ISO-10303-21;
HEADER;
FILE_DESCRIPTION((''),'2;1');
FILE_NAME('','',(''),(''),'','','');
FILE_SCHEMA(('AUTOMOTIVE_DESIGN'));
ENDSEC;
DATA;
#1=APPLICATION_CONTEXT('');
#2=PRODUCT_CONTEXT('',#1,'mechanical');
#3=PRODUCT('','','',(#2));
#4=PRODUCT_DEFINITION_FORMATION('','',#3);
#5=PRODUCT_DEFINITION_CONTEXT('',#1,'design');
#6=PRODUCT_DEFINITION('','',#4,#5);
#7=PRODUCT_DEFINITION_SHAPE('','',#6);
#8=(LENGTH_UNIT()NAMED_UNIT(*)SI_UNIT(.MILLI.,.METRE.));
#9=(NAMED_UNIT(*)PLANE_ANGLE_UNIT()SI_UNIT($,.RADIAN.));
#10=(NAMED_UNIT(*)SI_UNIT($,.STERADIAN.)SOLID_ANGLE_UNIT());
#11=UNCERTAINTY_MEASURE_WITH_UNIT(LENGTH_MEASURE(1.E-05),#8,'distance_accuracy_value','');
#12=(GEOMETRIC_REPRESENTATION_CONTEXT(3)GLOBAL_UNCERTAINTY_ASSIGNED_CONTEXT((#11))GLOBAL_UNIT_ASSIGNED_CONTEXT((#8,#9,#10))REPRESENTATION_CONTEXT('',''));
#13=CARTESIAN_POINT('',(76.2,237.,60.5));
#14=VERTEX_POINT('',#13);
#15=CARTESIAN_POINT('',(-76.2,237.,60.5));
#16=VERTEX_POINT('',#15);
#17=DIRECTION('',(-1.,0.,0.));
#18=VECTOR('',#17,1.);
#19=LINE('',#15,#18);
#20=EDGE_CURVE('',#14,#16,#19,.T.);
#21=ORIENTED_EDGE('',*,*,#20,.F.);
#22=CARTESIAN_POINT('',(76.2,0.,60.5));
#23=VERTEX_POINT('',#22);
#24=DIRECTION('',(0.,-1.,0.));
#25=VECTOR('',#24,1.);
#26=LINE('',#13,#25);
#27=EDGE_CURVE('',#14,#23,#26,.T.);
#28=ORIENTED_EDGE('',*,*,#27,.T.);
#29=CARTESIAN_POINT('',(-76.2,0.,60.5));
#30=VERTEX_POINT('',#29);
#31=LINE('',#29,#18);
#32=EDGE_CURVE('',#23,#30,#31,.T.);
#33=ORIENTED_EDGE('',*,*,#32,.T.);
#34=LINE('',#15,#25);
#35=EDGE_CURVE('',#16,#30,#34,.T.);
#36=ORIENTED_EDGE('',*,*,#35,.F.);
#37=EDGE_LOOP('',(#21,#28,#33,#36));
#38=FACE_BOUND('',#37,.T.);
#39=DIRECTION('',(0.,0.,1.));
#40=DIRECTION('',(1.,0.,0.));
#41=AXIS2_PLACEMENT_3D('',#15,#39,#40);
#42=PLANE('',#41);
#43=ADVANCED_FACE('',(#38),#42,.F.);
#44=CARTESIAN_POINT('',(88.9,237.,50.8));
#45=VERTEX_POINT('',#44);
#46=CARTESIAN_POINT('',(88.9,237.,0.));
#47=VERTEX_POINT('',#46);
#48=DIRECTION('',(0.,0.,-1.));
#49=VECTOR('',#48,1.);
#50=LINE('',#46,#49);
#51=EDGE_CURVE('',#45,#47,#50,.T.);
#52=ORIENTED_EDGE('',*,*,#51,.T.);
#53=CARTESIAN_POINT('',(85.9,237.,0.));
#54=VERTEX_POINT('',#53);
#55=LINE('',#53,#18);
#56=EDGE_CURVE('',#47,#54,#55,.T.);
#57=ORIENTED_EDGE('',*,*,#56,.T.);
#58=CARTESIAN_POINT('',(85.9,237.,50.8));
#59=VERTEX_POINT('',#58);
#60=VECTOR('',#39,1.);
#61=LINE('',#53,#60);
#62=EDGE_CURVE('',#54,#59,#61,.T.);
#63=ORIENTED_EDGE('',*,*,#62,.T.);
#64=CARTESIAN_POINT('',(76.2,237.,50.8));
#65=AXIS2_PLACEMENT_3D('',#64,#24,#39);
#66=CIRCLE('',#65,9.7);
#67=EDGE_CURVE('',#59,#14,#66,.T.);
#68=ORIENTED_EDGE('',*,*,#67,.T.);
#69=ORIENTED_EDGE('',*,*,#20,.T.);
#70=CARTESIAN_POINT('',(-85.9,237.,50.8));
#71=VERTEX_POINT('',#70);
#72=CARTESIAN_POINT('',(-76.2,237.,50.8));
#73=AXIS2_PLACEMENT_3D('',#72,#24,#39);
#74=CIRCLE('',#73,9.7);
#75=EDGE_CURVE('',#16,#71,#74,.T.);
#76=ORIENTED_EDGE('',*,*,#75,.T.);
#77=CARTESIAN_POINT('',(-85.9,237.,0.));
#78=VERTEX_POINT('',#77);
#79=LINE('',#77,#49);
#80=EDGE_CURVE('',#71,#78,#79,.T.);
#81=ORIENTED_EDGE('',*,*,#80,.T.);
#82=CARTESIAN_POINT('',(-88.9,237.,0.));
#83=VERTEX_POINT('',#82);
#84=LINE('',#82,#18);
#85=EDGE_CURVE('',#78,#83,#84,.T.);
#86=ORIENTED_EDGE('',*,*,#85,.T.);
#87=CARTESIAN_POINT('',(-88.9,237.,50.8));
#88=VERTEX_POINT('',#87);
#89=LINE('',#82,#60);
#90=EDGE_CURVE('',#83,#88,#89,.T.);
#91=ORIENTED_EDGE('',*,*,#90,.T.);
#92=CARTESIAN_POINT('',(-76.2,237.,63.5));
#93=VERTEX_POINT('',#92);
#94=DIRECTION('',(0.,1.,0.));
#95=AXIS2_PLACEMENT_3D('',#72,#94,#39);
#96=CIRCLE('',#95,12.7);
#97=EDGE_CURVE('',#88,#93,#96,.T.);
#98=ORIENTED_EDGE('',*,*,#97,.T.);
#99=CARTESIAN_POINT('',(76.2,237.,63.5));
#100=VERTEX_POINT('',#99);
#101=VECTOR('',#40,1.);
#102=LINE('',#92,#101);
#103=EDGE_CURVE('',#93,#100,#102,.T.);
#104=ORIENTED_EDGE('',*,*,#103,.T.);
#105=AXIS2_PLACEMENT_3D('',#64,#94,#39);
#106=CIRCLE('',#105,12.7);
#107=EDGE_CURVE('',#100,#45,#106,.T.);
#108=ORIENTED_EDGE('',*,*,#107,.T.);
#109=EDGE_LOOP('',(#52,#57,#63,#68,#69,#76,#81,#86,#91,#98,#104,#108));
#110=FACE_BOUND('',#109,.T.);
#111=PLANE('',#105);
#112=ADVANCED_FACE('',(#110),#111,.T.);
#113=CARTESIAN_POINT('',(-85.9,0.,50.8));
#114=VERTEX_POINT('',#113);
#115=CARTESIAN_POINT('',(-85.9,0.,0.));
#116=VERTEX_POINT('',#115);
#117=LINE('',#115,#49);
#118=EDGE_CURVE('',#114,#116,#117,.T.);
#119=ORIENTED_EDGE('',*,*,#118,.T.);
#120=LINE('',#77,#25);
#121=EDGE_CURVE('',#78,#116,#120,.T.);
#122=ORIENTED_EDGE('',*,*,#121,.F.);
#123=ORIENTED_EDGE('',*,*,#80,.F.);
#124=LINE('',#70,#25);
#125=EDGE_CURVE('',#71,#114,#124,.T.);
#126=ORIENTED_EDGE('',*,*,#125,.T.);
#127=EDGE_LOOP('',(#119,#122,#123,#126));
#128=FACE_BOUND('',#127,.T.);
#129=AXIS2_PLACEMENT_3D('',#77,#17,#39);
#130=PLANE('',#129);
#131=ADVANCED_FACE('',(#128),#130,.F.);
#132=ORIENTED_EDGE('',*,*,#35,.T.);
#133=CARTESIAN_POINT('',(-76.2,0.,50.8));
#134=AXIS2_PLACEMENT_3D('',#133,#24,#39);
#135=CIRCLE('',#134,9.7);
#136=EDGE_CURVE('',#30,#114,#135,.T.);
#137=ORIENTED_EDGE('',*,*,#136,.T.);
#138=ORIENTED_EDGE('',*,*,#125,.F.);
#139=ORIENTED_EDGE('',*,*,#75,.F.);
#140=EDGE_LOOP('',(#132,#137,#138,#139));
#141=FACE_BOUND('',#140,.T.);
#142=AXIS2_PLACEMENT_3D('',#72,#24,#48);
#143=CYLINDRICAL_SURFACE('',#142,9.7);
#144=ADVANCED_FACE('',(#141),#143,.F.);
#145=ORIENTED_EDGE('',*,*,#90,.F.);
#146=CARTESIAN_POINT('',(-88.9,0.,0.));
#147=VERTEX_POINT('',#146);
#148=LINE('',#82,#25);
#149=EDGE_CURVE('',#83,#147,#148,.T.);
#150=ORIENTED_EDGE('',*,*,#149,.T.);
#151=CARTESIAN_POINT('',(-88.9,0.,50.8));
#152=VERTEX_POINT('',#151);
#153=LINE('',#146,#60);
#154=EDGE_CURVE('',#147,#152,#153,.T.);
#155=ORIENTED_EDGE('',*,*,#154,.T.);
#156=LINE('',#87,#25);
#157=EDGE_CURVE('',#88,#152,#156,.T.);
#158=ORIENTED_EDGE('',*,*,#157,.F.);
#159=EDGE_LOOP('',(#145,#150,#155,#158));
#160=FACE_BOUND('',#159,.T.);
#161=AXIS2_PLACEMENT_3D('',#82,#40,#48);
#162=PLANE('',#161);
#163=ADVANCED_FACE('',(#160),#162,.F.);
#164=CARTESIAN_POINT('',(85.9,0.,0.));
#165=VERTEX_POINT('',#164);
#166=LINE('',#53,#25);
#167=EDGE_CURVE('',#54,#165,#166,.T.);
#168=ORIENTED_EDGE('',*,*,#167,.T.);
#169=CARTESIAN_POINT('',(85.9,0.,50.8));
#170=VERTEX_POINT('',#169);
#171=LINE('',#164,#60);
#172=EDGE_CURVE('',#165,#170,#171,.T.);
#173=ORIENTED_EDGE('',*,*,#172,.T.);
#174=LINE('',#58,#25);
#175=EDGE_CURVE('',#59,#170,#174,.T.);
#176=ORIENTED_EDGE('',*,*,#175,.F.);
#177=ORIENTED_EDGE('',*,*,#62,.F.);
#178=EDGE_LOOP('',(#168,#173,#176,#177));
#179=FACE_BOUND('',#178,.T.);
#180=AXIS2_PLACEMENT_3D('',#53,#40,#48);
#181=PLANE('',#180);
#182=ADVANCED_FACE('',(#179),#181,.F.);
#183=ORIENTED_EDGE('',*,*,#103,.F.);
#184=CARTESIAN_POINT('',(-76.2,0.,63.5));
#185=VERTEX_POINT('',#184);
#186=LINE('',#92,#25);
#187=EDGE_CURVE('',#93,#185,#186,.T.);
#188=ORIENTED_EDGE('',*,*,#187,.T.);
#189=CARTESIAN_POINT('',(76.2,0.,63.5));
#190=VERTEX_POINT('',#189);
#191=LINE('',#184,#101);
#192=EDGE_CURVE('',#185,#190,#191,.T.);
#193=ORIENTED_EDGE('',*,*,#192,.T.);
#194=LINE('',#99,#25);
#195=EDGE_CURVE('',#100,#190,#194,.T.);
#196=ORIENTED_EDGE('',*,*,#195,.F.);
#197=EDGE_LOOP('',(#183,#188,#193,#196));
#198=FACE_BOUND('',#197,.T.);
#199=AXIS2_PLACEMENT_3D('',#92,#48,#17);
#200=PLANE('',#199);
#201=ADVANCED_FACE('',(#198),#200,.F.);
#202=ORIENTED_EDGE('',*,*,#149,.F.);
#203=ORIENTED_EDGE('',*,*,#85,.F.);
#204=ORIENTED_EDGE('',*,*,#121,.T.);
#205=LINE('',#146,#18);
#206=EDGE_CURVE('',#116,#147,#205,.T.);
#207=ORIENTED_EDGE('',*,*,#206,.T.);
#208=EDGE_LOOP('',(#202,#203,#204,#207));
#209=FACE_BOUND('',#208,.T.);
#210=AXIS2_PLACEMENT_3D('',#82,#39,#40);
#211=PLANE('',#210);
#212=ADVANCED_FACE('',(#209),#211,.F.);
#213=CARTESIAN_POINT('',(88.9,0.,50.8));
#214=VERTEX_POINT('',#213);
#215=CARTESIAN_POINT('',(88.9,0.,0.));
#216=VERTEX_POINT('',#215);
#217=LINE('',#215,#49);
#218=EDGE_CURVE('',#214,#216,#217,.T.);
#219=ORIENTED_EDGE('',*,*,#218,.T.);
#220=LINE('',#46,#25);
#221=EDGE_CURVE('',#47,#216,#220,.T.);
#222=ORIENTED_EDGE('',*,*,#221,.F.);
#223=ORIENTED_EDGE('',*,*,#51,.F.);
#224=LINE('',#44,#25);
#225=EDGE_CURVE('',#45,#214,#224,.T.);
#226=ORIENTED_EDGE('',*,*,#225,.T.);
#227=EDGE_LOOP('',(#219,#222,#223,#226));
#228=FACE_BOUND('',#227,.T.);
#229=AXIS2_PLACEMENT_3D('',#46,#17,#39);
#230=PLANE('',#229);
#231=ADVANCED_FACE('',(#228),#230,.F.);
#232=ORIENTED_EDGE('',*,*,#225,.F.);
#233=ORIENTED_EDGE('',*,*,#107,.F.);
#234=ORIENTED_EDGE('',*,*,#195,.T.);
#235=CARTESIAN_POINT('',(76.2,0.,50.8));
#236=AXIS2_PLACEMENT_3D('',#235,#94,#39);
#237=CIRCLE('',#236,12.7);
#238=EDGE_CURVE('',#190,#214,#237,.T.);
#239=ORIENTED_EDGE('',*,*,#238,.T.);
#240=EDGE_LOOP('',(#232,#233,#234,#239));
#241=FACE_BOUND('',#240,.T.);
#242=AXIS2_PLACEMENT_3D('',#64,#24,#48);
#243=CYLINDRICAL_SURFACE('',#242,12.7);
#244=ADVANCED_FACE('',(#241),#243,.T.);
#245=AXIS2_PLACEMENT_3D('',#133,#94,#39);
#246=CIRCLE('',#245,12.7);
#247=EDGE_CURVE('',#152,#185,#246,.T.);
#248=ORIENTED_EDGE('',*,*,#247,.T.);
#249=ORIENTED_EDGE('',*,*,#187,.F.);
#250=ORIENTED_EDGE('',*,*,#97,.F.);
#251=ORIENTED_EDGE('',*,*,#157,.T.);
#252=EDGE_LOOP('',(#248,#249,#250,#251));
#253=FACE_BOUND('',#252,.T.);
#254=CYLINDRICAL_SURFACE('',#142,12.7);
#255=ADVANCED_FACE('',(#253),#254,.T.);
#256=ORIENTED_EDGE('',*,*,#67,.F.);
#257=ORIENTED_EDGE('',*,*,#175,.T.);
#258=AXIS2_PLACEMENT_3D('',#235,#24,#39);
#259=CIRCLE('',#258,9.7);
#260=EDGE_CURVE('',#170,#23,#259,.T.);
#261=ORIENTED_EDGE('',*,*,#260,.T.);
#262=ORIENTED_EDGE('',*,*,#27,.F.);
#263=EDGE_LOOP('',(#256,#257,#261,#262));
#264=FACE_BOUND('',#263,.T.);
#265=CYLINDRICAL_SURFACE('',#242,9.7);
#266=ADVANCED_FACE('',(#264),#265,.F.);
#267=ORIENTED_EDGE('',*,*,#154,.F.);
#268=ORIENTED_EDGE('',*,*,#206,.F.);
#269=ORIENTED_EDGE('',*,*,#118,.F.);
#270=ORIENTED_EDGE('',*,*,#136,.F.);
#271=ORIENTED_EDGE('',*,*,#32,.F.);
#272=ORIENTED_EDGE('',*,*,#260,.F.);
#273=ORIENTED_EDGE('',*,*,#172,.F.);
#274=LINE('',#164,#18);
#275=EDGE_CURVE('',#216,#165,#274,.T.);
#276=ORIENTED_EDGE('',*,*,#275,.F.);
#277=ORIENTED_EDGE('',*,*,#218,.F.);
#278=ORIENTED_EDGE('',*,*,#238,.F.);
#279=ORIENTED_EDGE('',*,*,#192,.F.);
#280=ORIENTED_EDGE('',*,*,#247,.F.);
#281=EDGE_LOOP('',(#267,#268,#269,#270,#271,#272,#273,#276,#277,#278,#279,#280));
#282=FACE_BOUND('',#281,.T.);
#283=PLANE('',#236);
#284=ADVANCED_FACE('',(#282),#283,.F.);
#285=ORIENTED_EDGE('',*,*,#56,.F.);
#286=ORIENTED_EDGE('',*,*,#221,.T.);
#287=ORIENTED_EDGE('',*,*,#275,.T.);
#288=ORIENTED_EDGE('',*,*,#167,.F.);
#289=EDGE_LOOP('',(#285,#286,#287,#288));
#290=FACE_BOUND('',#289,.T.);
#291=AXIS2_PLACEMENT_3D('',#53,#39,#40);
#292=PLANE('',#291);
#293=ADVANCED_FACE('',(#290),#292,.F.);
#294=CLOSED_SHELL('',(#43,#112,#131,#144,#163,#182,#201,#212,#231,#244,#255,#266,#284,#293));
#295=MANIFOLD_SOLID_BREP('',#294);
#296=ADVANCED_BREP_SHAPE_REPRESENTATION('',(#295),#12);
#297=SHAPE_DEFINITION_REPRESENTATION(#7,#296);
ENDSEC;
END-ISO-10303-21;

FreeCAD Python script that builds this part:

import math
import FreeCAD as App
import Part
import Sketcher
from FreeCAD import Vector

doc = App.newDocument("Part")
params = doc.addObject("Spreadsheet::Sheet", "Params")
for row, (alias, value) in enumerate([
    ("sketch1_radius", "12.7 mm"),
    ("sketch1_radius2", "9.7 mm"),
    ("sketch1_width", "152.4 mm"),
    ("sketch1_height", "50.8 mm"),
    ("pad1_length", "237 mm"),
], start=1):
    params.set(f"A{row}", alias)
    params.set(f"B{row}", "=" + value)
    params.setAlias(f"B{row}", alias)

body = doc.addObject("PartDesign::Body", "Body")

# Sketch on XZ plane
sketch1 = body.newObject("Sketcher::SketchObject", "Sketch")
sketch1.AttachmentSupport = (doc.getObject("XZ_Plane"), [""])
sketch1.MapMode = "FlatFace"
sketch1.addGeometry(Part.LineSegment(Vector(-88.9, 0, 0), Vector(-88.9, 50.8, 0)), False)
sketch1.addGeometry(Part.ArcOfCircle(Part.Circle(Vector(-76.2, 50.8, 0), Vector(0, 0, 1), 12.7), math.radians(90), math.radians(180)), False)
sketch1.addGeometry(Part.LineSegment(Vector(-76.2, 63.5, 0), Vector(76.2, 63.5, 0)), False)
sketch1.addGeometry(Part.ArcOfCircle(Part.Circle(Vector(76.2, 50.8, 0), Vector(0, 0, 1), 12.7), math.radians(0), math.radians(90)), False)
sketch1.addGeometry(Part.LineSegment(Vector(88.9, 50.8, 0), Vector(88.9, 0, 0)), False)
sketch1.addGeometry(Part.LineSegment(Vector(88.9, 0, 0), Vector(85.9, 0, 0)), False)
sketch1.addGeometry(Part.LineSegment(Vector(85.9, 0, 0), Vector(85.9, 50.8, 0)), False)
sketch1.addGeometry(Part.ArcOfCircle(Part.Circle(Vector(76.2, 50.8, 0), Vector(0, 0, 1), 9.7), math.radians(0), math.radians(90)), False)
sketch1.addGeometry(Part.LineSegment(Vector(76.2, 60.5, 0), Vector(-76.2, 60.5, 0)), False)
sketch1.addGeometry(Part.ArcOfCircle(Part.Circle(Vector(-76.2, 50.8, 0), Vector(0, 0, 1), 9.7), math.radians(90), math.radians(180)), False)
sketch1.addGeometry(Part.LineSegment(Vector(-85.9, 50.8, 0), Vector(-85.9, 0, 0)), False)
sketch1.addGeometry(Part.LineSegment(Vector(-85.9, 0, 0), Vector(-88.9, 0, 0)), False)
sketch1.addConstraint(Sketcher.Constraint("Tangent", 0, 2, 1, 2))
sketch1.addConstraint(Sketcher.Constraint("Tangent", 1, 1, 2, 1))
sketch1.addConstraint(Sketcher.Constraint("Tangent", 2, 2, 3, 2))
sketch1.addConstraint(Sketcher.Constraint("Tangent", 3, 1, 4, 1))
sketch1.addConstraint(Sketcher.Constraint("Coincident", 4, 2, 5, 1))
sketch1.addConstraint(Sketcher.Constraint("Coincident", 5, 2, 6, 1))
sketch1.addConstraint(Sketcher.Constraint("Tangent", 6, 2, 7, 1))
sketch1.addConstraint(Sketcher.Constraint("Tangent", 7, 2, 8, 1))
sketch1.addConstraint(Sketcher.Constraint("Tangent", 8, 2, 9, 1))
sketch1.addConstraint(Sketcher.Constraint("Tangent", 9, 2, 10, 1))
sketch1.addConstraint(Sketcher.Constraint("Coincident", 10, 2, 11, 1))
sketch1.addConstraint(Sketcher.Constraint("Coincident", 11, 2, 0, 1))
sketch1.addConstraint(Sketcher.Constraint("Vertical", 0))
sketch1.addConstraint(Sketcher.Constraint("Horizontal", 2))
sketch1.addConstraint(Sketcher.Constraint("Vertical", 4))
sketch1.addConstraint(Sketcher.Constraint("Horizontal", 5))
sketch1.addConstraint(Sketcher.Constraint("Vertical", 6))
sketch1.addConstraint(Sketcher.Constraint("Horizontal", 8))
sketch1.addConstraint(Sketcher.Constraint("Vertical", 10))
sketch1.addConstraint(Sketcher.Constraint("Horizontal", 11))
sketch1.addConstraint(Sketcher.Constraint("Coincident", 7, 3, 3, 3))
sketch1.addConstraint(Sketcher.Constraint("Coincident", 9, 3, 1, 3))
sketch1.addConstraint(Sketcher.Constraint("Equal", 1, 3))
sketch1.addConstraint(Sketcher.Constraint("Symmetric", 5, 2, 10, 2, -1, 1))
sketch1.addConstraint(Sketcher.Constraint("PointOnObject", 4, 2, -1))
sketch1.addConstraint(Sketcher.Constraint("Radius", 1, 12.7))
sketch1.addConstraint(Sketcher.Constraint("Radius", 7, 9.7))
sketch1.addConstraint(Sketcher.Constraint("DistanceX", 2, 1, 2, 2, 152.4))
sketch1.addConstraint(Sketcher.Constraint("DistanceY", 0, 1, 0, 2, 50.8))
sketch1.setExpression("Constraints[25]", "Params.sketch1_radius")
sketch1.setExpression("Constraints[26]", "Params.sketch1_radius2")
sketch1.setExpression("Constraints[27]", "Params.sketch1_width")
sketch1.setExpression("Constraints[28]", "Params.sketch1_height")
pad1 = body.newObject("PartDesign::Pad", "Pad")
pad1.Profile = sketch1
pad1.setExpression("Length", "Params.pad1_length")
pad1.Reversed = True

doc.recompute()
